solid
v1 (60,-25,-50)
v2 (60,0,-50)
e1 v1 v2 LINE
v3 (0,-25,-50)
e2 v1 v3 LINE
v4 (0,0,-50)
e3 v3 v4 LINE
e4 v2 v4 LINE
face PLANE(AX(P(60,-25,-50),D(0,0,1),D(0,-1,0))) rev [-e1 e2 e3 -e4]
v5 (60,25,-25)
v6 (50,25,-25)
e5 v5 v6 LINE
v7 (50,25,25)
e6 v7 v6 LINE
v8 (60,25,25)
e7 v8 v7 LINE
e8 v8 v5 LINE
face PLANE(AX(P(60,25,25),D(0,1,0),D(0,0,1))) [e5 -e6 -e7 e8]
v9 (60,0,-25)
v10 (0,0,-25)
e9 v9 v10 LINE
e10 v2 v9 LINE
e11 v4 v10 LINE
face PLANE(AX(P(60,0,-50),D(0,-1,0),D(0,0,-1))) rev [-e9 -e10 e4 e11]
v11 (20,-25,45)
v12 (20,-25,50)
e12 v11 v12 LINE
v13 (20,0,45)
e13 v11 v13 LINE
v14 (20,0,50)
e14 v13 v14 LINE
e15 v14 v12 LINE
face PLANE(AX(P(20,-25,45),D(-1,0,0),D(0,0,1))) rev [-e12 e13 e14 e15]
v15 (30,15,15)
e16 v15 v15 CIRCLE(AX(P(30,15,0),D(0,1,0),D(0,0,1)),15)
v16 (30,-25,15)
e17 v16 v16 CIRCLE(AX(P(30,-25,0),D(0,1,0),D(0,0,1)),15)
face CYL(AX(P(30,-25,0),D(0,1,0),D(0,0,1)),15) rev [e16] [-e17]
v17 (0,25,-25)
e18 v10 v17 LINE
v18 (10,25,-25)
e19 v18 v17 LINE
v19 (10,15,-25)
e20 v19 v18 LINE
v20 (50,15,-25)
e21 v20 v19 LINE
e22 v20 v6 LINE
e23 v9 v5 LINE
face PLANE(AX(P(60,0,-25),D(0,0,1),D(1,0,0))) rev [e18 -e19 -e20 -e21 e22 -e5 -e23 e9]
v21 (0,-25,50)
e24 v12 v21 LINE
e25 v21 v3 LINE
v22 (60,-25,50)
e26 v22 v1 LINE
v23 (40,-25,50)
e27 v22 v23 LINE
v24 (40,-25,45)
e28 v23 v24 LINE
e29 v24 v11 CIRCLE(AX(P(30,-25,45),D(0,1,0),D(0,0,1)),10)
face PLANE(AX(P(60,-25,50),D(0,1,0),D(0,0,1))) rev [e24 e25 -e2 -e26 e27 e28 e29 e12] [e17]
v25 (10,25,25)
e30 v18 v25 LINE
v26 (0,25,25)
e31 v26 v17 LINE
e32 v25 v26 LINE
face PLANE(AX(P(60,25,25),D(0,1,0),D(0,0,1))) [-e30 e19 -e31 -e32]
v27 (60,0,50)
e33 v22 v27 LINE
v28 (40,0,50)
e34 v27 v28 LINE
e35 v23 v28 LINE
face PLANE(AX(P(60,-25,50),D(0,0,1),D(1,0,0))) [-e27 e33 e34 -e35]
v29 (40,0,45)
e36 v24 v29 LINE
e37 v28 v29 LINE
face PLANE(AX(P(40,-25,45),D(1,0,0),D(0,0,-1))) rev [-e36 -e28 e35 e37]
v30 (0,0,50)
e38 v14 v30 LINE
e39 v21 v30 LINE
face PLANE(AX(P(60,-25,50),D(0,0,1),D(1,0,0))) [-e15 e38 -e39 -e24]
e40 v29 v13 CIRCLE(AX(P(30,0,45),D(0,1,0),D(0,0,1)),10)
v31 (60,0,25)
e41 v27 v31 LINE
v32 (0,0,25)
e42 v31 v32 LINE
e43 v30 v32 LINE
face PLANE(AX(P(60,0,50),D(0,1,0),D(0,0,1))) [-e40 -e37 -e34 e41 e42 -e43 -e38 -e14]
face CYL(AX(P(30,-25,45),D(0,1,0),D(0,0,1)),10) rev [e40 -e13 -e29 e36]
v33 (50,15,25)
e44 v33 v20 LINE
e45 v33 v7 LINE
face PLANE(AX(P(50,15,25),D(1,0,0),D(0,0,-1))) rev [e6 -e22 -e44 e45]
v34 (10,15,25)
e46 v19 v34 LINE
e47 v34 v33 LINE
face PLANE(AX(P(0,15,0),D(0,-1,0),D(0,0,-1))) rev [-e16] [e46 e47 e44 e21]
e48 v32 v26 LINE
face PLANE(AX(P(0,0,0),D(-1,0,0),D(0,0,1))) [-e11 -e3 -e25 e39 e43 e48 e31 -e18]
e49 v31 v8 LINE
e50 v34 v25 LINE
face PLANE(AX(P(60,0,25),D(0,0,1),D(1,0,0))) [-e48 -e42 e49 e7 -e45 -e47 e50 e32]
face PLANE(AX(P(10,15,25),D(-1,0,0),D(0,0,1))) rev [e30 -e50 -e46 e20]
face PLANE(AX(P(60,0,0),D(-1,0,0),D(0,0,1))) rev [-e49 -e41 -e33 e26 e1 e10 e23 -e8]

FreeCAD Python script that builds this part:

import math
import FreeCAD as App
import Part
import Sketcher
from FreeCAD import Vector

doc = App.newDocument("Part")
body = doc.addObject("PartDesign::Body", "Body")

# Sketch on YZ plane
sketch1 = body.newObject("Sketcher::SketchObject", "Sketch")
sketch1.AttachmentSupport = (doc.getObject("YZ_Plane"), [""])
sketch1.MapMode = "FlatFace"
sketch1.addGeometry([
    Part.LineSegment(Vector(0, 25, 0), Vector(0, 50, 0)),  # 0
    Part.LineSegment(Vector(0, 50, 0), Vector(-25, 50, 0)),  # 1
    Part.LineSegment(Vector(-25, 50, 0), Vector(-25, -50, 0)),  # 2
    Part.LineSegment(Vector(-25, -50, 0), Vector(0, -50, 0)),  # 3
    Part.LineSegment(Vector(0, -50, 0), Vector(0, -25, 0)),  # 4
    Part.LineSegment(Vector(0, -25, 0), Vector(25, -25, 0)),  # 5
    Part.LineSegment(Vector(25, -25, 0), Vector(25, 25, 0)),  # 6
    Part.LineSegment(Vector(25, 25, 0), Vector(0, 25, 0)),  # 7
], False)
sketch1.addConstraint([
    Sketcher.Constraint("Coincident", 0, 2, 1, 1),
    Sketcher.Constraint("Coincident", 1, 2, 2, 1),
    Sketcher.Constraint("Coincident", 2, 2, 3, 1),
    Sketcher.Constraint("Coincident", 3, 2, 4, 1),
    Sketcher.Constraint("Coincident", 4, 2, 5, 1),
    Sketcher.Constraint("Coincident", 5, 2, 6, 1),
    Sketcher.Constraint("Coincident", 6, 2, 7, 1),
    Sketcher.Constraint("Coincident", 7, 2, 0, 1),
    Sketcher.Constraint("Vertical", 0),
    Sketcher.Constraint("Horizontal", 1),
    Sketcher.Constraint("Vertical", 2),
    Sketcher.Constraint("Horizontal", 3),
    Sketcher.Constraint("Vertical", 4),
    Sketcher.Constraint("Horizontal", 5),
    Sketcher.Constraint("Vertical", 6),
    Sketcher.Constraint("Horizontal", 7),
    Sketcher.Constraint("Symmetric", 0, 2, 3, 2, -1, 1),
    Sketcher.Constraint("Symmetric", 4, 2, 7, 2, -1),
    Sketcher.Constraint("Equal", 3, 5),
    Sketcher.Constraint("Equal", 7, 0),
    Sketcher.Constraint("DistanceX", 1, 2, 1, 1, 25.0),
    Sketcher.Constraint("DistanceY", 2, 2, 2, 1, 100.0),
])
pad1 = body.newObject("PartDesign::Pad", "Pad")
pad1.Profile = sketch1
pad1.Length = 60

# Sketch on XZ plane
sketch2 = body.newObject("Sketcher::SketchObject", "Sketch001")
sketch2.AttachmentSupport = (doc.getObject("XZ_Plane"), [""])
sketch2.MapMode = "FlatFace"
sketch2.addGeometry([
    Part.LineSegment(Vector(40, 60, 0), Vector(40, 45, 0)),
    Part.ArcOfCircle(Part.Circle(Vector(30, 45, 0), Vector(0, 0, 1), 10), math.radians(180), math.radians(360)),
    Part.LineSegment(Vector(20, 45, 0), Vector(20, 60, 0)),
    Part.ArcOfCircle(Part.Circle(Vector(30, 60, 0), Vector(0, 0, 1), 10), math.radians(0), math.radians(180)),
], False)
sketch2.addConstraint([
    Sketcher.Constraint("Tangent", 0, 2, 1, 2),
    Sketcher.Constraint("Tangent", 1, 1, 2, 1),
    Sketcher.Constraint("Tangent", 2, 2, 3, 2),
    Sketcher.Constraint("Tangent", 3, 1, 0, 1),
    Sketcher.Constraint("Vertical", 0),
    Sketcher.Constraint("Vertical", 2),
    Sketcher.Constraint("Radius", 1, 10.0),
    Sketcher.Constraint("DistanceY", 0, 2, 0, 1, 15.0),
    Sketcher.Constraint("DistanceX", -1, 1, 1, 3, 30.0),
    Sketcher.Constraint("DistanceY", -1, 1, 1, 3, 45.0),
])
pocket1 = body.newObject("PartDesign::Pocket", "Pocket")
pocket1.Profile = sketch2
pocket1.Type = "ThroughAll"
pocket1.Reversed = True

# Sketch on XZ plane
sketch3 = body.newObject("Sketcher::SketchObject", "Sketch002")
sketch3.AttachmentSupport = (doc.getObject("XZ_Plane"), [""])
sketch3.MapMode = "FlatFace"
sketch3.AttachmentOffset = App.Placement(Vector(0, 0, -25), App.Rotation())
sketch3.addGeometry([
    Part.LineSegment(Vector(10, -25, 0), Vector(10, 25, 0)),
    Part.LineSegment(Vector(10, 25, 0), Vector(50, 25, 0)),
    Part.LineSegment(Vector(50, 25, 0), Vector(50, -25, 0)),
    Part.LineSegment(Vector(50, -25, 0), Vector(10, -25, 0)),
], False)
sketch3.addConstraint([
    Sketcher.Constraint("Coincident", 0, 2, 1, 1),
    Sketcher.Constraint("Coincident", 1, 2, 2, 1),
    Sketcher.Constraint("Coincident", 2, 2, 3, 1),
    Sketcher.Constraint("Coincident", 3, 2, 0, 1),
    Sketcher.Constraint("Vertical", 0),
    Sketcher.Constraint("Horizontal", 1),
    Sketcher.Constraint("Vertical", 2),
    Sketcher.Constraint("Horizontal", 3),
    Sketcher.Constraint("DistanceX", 1, 1, 1, 2, 40.0),
    Sketcher.Constraint("DistanceY", 0, 1, 0, 2, 50.0),
    Sketcher.Constraint("DistanceX", -1, 1, 0, 2, 10.0),
    Sketcher.Constraint("DistanceY", -1, 1, 0, 2, 25.0),
])
pocket2 = body.newObject("PartDesign::Pocket", "Pocket001")
pocket2.Profile = sketch3
pocket2.Length = 10
pocket2.Reversed = True

# Sketch on XZ plane
sketch4 = body.newObject("Sketcher::SketchObject", "Sketch003")
sketch4.AttachmentSupport = (doc.getObject("XZ_Plane"), [""])
sketch4.MapMode = "FlatFace"
sketch4.AttachmentOffset = App.Placement(Vector(0, 0, -15), App.Rotation())
sketch4.addGeometry(Part.Circle(Vector(30, 0, 0), Vector(0, 0, 1), 15), False)
sketch4.addConstraint([
    Sketcher.Constraint("PointOnObject", 0, 3, -1),
    Sketcher.Constraint("Diameter", 0, 30.0),
    Sketcher.Constraint("DistanceX", -1, 1, 0, 3, 30.0),
])
pocket3 = body.newObject("PartDesign::Pocket", "Pocket002")
pocket3.Profile = sketch4
pocket3.Type = "ThroughAll"
pocket3.Reversed = True

doc.recompute()
